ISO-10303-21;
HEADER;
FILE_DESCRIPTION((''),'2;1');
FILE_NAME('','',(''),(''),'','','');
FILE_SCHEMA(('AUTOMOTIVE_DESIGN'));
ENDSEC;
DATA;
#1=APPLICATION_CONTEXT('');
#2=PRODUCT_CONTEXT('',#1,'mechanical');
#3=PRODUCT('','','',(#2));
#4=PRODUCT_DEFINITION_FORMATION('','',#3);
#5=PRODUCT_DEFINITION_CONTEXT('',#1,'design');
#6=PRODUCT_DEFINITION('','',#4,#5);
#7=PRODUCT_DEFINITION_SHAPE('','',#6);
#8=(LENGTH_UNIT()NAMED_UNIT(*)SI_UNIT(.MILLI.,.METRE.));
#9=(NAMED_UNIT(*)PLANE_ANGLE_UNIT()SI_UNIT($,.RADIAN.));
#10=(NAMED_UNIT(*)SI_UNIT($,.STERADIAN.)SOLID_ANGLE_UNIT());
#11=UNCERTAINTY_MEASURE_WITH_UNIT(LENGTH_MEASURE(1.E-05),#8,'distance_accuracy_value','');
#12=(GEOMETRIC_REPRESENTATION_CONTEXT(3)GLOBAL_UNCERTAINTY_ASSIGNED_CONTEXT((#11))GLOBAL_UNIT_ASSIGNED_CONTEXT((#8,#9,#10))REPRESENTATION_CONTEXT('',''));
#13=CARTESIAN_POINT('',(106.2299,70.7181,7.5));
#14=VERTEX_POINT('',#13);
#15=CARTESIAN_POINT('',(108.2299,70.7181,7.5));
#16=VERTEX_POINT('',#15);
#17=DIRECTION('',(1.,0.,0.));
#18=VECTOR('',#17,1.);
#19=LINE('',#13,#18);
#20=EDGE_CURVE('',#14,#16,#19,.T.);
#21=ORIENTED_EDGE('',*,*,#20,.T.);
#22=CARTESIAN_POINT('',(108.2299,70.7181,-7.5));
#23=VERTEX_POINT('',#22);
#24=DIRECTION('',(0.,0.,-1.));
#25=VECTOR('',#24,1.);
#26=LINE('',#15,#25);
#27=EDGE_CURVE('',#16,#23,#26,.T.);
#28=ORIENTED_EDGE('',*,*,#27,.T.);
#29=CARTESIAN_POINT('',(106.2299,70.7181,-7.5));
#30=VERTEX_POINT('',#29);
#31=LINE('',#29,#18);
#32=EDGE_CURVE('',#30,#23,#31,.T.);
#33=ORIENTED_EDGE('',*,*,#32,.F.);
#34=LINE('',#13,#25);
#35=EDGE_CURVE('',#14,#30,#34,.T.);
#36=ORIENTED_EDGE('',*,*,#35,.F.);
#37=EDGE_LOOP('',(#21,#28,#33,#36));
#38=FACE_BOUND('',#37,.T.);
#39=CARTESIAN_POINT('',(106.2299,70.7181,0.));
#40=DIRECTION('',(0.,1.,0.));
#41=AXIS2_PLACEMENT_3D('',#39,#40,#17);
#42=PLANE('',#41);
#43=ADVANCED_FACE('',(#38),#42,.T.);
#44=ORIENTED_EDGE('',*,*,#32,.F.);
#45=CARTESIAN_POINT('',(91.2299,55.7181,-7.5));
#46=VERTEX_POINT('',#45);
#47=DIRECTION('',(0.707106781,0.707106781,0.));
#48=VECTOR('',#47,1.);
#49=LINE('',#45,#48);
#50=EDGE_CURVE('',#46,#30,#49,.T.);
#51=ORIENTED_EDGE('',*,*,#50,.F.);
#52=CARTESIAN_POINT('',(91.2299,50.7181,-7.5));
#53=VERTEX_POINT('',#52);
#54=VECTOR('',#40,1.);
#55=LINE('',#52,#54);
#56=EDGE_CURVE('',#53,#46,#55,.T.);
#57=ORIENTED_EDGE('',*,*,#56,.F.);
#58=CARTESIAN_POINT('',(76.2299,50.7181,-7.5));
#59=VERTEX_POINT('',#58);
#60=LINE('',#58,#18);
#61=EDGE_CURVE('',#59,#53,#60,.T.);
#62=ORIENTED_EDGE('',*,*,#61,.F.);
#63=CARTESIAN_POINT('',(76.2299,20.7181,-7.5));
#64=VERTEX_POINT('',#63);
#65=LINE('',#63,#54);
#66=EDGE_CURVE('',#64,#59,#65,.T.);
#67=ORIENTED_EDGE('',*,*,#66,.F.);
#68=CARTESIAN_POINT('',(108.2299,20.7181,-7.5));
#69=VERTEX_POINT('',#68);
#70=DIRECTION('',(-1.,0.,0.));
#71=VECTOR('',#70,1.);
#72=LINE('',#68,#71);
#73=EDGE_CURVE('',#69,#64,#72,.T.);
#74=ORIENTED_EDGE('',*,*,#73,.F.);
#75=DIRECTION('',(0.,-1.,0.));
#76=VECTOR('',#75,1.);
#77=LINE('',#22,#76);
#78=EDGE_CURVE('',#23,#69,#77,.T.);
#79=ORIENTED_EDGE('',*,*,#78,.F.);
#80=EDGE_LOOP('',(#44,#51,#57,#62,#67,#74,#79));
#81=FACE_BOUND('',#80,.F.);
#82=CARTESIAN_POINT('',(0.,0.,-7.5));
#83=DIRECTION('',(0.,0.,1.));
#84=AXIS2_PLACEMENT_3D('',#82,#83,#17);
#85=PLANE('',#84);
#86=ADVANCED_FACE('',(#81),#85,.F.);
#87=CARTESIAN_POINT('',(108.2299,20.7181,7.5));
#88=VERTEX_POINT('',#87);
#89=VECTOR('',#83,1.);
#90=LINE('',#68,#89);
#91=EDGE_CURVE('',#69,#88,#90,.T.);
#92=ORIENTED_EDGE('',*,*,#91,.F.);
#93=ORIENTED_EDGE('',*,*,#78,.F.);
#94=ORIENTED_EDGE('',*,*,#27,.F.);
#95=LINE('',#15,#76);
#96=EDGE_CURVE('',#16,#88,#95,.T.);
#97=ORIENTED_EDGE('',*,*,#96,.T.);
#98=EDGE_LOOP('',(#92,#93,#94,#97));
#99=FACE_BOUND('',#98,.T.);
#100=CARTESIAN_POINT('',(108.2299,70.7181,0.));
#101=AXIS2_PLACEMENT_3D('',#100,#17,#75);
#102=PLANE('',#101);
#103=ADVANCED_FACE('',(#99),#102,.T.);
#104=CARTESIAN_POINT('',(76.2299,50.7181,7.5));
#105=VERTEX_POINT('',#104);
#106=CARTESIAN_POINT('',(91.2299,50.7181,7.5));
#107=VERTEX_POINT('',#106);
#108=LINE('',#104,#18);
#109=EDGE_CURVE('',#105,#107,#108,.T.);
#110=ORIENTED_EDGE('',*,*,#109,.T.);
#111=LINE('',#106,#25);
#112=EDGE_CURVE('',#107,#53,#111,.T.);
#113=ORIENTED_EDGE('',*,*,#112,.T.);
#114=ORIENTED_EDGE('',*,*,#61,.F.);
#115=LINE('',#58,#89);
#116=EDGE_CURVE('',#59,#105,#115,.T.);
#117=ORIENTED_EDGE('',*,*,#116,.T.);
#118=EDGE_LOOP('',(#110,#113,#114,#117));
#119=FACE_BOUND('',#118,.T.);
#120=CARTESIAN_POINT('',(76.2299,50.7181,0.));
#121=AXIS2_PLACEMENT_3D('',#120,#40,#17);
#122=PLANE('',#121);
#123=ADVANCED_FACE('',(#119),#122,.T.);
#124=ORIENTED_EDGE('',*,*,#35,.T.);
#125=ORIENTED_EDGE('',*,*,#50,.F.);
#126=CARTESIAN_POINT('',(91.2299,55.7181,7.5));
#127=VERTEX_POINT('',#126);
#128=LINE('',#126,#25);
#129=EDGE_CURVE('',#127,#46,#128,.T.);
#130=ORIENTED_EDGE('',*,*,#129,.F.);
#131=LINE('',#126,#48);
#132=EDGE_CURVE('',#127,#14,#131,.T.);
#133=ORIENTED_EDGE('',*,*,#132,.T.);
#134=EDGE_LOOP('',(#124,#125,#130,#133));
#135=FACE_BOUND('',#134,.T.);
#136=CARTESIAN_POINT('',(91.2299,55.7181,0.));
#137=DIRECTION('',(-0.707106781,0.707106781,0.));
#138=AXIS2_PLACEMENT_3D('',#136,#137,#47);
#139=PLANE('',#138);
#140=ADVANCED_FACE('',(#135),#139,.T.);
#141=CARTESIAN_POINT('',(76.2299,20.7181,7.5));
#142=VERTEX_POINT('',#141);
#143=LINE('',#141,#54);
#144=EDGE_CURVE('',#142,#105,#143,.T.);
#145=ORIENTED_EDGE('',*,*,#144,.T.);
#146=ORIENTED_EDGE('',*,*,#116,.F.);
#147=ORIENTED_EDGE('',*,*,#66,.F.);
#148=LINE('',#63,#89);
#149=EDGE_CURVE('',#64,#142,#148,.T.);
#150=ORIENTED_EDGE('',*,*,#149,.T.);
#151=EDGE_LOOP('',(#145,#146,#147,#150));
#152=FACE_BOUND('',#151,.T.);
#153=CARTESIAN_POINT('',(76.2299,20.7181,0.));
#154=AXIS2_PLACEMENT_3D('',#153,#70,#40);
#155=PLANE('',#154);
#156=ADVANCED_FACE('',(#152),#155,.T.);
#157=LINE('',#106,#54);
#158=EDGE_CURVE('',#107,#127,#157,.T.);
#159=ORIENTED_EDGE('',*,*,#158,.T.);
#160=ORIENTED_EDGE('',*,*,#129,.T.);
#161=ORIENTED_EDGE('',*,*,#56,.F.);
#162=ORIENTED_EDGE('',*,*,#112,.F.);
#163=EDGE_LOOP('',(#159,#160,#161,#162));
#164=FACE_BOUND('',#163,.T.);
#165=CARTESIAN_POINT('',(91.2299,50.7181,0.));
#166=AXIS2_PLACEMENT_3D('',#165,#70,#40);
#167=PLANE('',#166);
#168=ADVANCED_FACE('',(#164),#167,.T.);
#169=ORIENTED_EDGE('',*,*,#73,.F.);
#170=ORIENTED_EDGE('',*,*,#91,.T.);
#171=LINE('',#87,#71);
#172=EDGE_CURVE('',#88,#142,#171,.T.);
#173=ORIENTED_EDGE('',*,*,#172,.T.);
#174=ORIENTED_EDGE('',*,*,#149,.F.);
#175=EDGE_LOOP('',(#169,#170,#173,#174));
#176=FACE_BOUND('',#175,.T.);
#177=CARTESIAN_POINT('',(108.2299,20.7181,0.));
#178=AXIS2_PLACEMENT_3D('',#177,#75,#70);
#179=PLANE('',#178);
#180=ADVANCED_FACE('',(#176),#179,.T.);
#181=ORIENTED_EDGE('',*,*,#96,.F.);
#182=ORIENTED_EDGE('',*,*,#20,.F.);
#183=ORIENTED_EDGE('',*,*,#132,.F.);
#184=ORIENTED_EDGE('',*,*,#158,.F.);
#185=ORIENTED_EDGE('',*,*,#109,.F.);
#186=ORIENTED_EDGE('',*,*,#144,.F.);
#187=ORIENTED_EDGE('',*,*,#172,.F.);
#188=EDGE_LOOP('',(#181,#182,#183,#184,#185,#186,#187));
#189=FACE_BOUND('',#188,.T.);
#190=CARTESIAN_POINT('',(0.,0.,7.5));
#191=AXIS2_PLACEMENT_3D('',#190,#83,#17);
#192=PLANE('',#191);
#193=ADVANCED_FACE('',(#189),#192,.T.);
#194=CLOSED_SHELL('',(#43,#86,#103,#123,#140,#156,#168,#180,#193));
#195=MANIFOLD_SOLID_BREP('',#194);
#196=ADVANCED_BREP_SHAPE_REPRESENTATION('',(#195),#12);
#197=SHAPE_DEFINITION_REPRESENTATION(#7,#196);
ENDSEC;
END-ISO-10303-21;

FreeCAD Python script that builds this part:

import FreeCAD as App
import Part
import Sketcher

V = App.Vector


def add_polygon(sketch, points):
    """Adds a closed chain of lines whose ends are joined by coincident constraints."""
    first, n = sketch.GeometryCount, len(points)
    for a, b in zip(points, points[1:] + points[:1]):
        sketch.addGeometry(Part.LineSegment(App.Vector(*a, 0), App.Vector(*b, 0)), False)
    for i in range(n):
        sketch.addConstraint(Sketcher.Constraint("Coincident", first + i, 2, first + (i + 1) % n, 1))

doc = App.newDocument("Part")
body = doc.addObject("PartDesign::Body", "Body")

sketch1 = doc.addObject("Sketcher::SketchObject", "Sketch")
body.addObject(sketch1)
sketch1.AttachmentSupport = (doc.XY_Plane, [""])
sketch1.MapMode = "FlatFace"
add_polygon(sketch1, [(91.2, 50.7), (76.2, 50.7), (76.2, 20.7), (108.2, 20.7), (108.2, 70.7), (106.2, 70.7), (91.2, 55.7)])
sketch1.addConstraint([
    Sketcher.Constraint("Horizontal", 0),
    Sketcher.Constraint("Vertical", 1),
    Sketcher.Constraint("Horizontal", 2),
    Sketcher.Constraint("Vertical", 3),
    Sketcher.Constraint("Horizontal", 4),
    Sketcher.Constraint("Vertical", 6),
    Sketcher.Constraint("DistanceX", 0, 2, 0, 1, 15.0),
    Sketcher.Constraint("DistanceX", 2, 1, 2, 2, 32.0),
    Sketcher.Constraint("DistanceY", 1, 2, 1, 1, 30.0),
    Sketcher.Constraint("DistanceY", 3, 1, 3, 2, 50.0),
    Sketcher.Constraint("DistanceY", 6, 2, 6, 1, 5.0),
    Sketcher.Constraint("DistanceX", 0, 2, 4, 2, 30.0),
    Sketcher.Constraint("DistanceX", -1, 1, 0, 2, 76.23),
    Sketcher.Constraint("DistanceY", -1, 1, 0, 2, 50.718),
])
pad1 = doc.addObject("PartDesign::Pad", "Pad")
body.addObject(pad1)
pad1.Profile = sketch1
pad1.Length = 15
pad1.Midplane = True

doc.recompute()
